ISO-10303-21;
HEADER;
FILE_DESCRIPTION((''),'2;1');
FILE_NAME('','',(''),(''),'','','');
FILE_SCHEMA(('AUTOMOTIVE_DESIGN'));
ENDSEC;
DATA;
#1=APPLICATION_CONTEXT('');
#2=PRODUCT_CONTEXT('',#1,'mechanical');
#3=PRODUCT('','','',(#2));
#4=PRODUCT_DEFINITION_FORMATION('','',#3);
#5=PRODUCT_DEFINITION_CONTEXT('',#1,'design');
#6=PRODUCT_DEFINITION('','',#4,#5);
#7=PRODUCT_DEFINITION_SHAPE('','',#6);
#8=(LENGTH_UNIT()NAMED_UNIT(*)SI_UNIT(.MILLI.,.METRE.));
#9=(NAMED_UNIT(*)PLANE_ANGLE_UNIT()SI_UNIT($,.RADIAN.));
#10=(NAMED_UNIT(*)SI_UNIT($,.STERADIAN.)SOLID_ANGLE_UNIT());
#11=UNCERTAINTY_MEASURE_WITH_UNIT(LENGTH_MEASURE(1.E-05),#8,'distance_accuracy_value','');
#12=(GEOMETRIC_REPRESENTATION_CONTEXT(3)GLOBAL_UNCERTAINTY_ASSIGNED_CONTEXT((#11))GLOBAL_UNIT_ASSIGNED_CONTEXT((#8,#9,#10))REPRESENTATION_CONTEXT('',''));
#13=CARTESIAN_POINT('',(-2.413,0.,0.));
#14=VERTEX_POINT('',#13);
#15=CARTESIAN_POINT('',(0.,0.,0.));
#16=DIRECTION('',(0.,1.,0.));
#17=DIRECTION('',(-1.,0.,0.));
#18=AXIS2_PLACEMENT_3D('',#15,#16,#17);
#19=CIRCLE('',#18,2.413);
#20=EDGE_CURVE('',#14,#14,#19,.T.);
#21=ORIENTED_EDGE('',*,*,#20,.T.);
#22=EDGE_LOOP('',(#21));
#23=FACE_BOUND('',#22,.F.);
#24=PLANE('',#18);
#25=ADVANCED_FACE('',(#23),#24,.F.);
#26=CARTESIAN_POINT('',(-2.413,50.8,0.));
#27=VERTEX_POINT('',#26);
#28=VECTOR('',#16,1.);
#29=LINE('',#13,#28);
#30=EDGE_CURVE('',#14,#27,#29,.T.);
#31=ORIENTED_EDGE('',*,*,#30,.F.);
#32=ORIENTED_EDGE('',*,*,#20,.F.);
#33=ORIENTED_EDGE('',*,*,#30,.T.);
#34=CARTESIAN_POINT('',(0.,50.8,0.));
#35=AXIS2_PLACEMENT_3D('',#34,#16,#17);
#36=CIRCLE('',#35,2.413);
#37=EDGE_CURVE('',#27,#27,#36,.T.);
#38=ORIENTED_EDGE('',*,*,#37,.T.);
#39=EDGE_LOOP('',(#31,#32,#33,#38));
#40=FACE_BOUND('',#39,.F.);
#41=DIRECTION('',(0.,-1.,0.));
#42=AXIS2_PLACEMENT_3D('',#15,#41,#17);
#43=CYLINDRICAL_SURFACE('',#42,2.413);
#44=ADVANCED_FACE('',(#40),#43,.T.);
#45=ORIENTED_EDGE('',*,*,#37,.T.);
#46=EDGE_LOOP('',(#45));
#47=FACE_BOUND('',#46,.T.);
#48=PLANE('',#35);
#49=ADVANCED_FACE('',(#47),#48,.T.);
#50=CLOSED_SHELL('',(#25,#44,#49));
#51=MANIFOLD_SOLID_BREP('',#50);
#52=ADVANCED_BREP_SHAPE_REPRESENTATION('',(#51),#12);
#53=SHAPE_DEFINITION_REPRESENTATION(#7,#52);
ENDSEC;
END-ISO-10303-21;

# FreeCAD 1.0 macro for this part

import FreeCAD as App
import Part
import Sketcher

V = App.Vector
Q = App.Units.Quantity

doc = App.newDocument("Part")
body = doc.addObject("PartDesign::Body", "Body")

# Sketch on XZ plane
sketch1 = body.newObject("Sketcher::SketchObject", "Sketch")
sketch1.AttachmentSupport = (doc.getObject("XZ_Plane"), [""])
sketch1.MapMode = "FlatFace"
sketch1.addGeometry(Part.Circle(V(0, 0, 0), V(0, 0, 1), 2.413), False)
sketch1.addConstraint(Sketcher.Constraint("Coincident", 0, 3, -1, 1))
sketch1.addConstraint(Sketcher.Constraint("Diameter", 0, Q("0.19 in")))
pad1 = body.newObject("PartDesign::Pad", "Pad")
pad1.Profile = sketch1
pad1.Length = Q("2 in")
pad1.Reversed = True

doc.recompute()
